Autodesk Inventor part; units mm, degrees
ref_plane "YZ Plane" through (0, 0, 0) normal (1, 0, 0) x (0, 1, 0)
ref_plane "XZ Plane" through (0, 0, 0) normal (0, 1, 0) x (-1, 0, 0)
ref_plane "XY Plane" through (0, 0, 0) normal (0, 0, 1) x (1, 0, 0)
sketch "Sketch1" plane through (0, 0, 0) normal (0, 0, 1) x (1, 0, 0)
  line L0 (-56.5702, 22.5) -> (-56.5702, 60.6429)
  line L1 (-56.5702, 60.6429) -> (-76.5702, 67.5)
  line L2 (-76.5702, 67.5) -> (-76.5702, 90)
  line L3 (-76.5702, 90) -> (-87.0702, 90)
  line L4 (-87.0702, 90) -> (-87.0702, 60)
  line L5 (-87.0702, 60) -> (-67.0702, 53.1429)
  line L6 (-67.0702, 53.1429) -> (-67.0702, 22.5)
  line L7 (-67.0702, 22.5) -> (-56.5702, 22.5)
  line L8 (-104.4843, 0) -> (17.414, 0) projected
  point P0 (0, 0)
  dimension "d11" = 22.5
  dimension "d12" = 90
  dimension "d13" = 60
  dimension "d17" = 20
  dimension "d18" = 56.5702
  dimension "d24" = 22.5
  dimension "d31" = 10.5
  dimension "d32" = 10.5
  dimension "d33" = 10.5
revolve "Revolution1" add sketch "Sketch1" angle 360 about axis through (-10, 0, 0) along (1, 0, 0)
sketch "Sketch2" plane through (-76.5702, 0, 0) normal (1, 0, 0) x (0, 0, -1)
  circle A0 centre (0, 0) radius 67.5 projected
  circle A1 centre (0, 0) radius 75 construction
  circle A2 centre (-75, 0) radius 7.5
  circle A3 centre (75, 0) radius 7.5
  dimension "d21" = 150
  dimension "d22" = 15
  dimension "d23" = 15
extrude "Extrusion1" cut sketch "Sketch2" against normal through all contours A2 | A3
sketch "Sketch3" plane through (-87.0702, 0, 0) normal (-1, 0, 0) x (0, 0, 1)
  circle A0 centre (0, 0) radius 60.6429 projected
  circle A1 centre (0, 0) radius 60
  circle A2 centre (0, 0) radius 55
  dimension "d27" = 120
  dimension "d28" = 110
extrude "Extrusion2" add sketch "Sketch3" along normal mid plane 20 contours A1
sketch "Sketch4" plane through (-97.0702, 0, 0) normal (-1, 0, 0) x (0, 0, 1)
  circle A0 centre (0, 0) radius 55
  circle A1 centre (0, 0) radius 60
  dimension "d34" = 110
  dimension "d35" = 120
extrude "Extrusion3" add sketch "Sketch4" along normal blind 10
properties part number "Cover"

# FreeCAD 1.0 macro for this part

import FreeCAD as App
import Part
import Sketcher

V = App.Vector


def add_polygon(sketch, points):
    """Adds a closed chain of lines whose ends are joined by coincident constraints."""
    first, n = sketch.GeometryCount, len(points)
    for a, b in zip(points, points[1:] + points[:1]):
        sketch.addGeometry(Part.LineSegment(App.Vector(*a, 0), App.Vector(*b, 0)), False)
    for i in range(n):
        sketch.addConstraint(Sketcher.Constraint("Coincident", first + i, 2, first + (i + 1) % n, 1))

doc = App.newDocument("Part")
body = doc.addObject("PartDesign::Body", "Body")

sketch1 = body.newObject("Sketcher::SketchObject", "Sketch")
sketch1.AttachmentSupport = (doc.getObject("XY_Plane"), [""])
sketch1.MapMode = "FlatFace"
add_polygon(sketch1, [(-67, 22), (-57, 22), (-57, 61), (-77, 68), (-77, 90), (-87, 90), (-87, 60), (-67, 53)])
sketch1.addConstraint([
    Sketcher.Constraint("Horizontal", 0),
    Sketcher.Constraint("Vertical", 1),
    Sketcher.Constraint("Vertical", 3),
    Sketcher.Constraint("Horizontal", 4),
    Sketcher.Constraint("Vertical", 5),
    Sketcher.Constraint("Vertical", 7),
    Sketcher.Constraint("Parallel", 2, 6),
    Sketcher.Constraint("Equal", 0, 4),
    Sketcher.Constraint("DistanceX", 0, 1, 0, 2, 10.5),
    Sketcher.Constraint("DistanceY", 3, 1, 3, 2, 22.5),
    Sketcher.Constraint("DistanceY", -1, 1, 3, 2, 90.0),
    Sketcher.Constraint("DistanceY", -1, 1, 5, 2, 60.0),
    Sketcher.Constraint("DistanceX", 2, 2, 1, 2, 20.0),
    Sketcher.Constraint("DistanceY", -1, 1, 0, 2, 22.5),
    Sketcher.Constraint("DistanceX", 0, 2, -1, 1, 56.5702),
    Sketcher.Constraint("DistanceY", 1, 1, 1, 2, 38.143),
])
revolution = body.newObject("PartDesign::Revolution", "Revolution")
revolution.Profile = sketch1
revolution.ReferenceAxis = (sketch1, ["H_Axis"])
revolution.Angle = 360

sketch2 = body.newObject("Sketcher::SketchObject", "Sketch001")
sketch2.AttachmentSupport = (doc.getObject("YZ_Plane"), [""])
sketch2.MapMode = "FlatFace"
sketch2.AttachmentOffset = App.Placement(V(0, 0, -76.5702), App.Rotation())
sketch2.addGeometry([
    Part.Circle(V(0, 75, 0), V(0, 0, 1), 8),
    Part.Circle(V(0, -75, 0), V(0, 0, 1), 8),
], False)
sketch2.addConstraint([
    Sketcher.Constraint("Equal", 0, 1),
    Sketcher.Constraint("Symmetric", 0, 3, 1, 3, -1, 1),
    Sketcher.Constraint("PointOnObject", 0, 3, -2),
    Sketcher.Constraint("Diameter", 0, 15.0),
    Sketcher.Constraint("DistanceY", 1, 3, 0, 3, 150.0),
])
pocket1 = body.newObject("PartDesign::Pocket", "Pocket")
pocket1.Profile = sketch2
pocket1.Type = "ThroughAll"

sketch3 = body.newObject("Sketcher::SketchObject", "Sketch002")
sketch3.AttachmentSupport = (doc.getObject("YZ_Plane"), [""])
sketch3.MapMode = "FlatFace"
sketch3.AttachmentOffset = App.Placement(V(0, 0, -87.0702), App.Rotation())
sketch3.addGeometry([
    Part.Circle(V(0, 0, 0), V(0, 0, 1), 60),
    Part.Circle(V(0, 0, 0), V(0, 0, 1), 55),
], False)
sketch3.addConstraint([
    Sketcher.Constraint("Coincident", 0, 3, -1, 1),
    Sketcher.Constraint("Coincident", 1, 3, -1, 1),
    Sketcher.Constraint("Diameter", 0, 120.0),
    Sketcher.Constraint("Diameter", 1, 110.0),
])
pad1 = body.newObject("PartDesign::Pad", "Pad")
pad1.Profile = sketch3
pad1.Length = 20
pad1.Midplane = True

sketch4 = body.newObject("Sketcher::SketchObject", "Sketch003")
sketch4.AttachmentSupport = (doc.getObject("YZ_Plane"), [""])
sketch4.MapMode = "FlatFace"
sketch4.AttachmentOffset = App.Placement(V(0, 0, -97.0702), App.Rotation())
sketch4.addGeometry([
    Part.Circle(V(0, 0, 0), V(0, 0, 1), 60),
    Part.Circle(V(0, 0, 0), V(0, 0, 1), 55),
], False)
sketch4.addConstraint([
    Sketcher.Constraint("Coincident", 0, 3, -1, 1),
    Sketcher.Constraint("Coincident", 1, 3, -1, 1),
    Sketcher.Constraint("Diameter", 0, 120.0),
    Sketcher.Constraint("Diameter", 1, 110.0),
])
pad2 = body.newObject("PartDesign::Pad", "Pad001")
pad2.Profile = sketch4
pad2.Length = 10
pad2.Reversed = True

doc.recompute()
